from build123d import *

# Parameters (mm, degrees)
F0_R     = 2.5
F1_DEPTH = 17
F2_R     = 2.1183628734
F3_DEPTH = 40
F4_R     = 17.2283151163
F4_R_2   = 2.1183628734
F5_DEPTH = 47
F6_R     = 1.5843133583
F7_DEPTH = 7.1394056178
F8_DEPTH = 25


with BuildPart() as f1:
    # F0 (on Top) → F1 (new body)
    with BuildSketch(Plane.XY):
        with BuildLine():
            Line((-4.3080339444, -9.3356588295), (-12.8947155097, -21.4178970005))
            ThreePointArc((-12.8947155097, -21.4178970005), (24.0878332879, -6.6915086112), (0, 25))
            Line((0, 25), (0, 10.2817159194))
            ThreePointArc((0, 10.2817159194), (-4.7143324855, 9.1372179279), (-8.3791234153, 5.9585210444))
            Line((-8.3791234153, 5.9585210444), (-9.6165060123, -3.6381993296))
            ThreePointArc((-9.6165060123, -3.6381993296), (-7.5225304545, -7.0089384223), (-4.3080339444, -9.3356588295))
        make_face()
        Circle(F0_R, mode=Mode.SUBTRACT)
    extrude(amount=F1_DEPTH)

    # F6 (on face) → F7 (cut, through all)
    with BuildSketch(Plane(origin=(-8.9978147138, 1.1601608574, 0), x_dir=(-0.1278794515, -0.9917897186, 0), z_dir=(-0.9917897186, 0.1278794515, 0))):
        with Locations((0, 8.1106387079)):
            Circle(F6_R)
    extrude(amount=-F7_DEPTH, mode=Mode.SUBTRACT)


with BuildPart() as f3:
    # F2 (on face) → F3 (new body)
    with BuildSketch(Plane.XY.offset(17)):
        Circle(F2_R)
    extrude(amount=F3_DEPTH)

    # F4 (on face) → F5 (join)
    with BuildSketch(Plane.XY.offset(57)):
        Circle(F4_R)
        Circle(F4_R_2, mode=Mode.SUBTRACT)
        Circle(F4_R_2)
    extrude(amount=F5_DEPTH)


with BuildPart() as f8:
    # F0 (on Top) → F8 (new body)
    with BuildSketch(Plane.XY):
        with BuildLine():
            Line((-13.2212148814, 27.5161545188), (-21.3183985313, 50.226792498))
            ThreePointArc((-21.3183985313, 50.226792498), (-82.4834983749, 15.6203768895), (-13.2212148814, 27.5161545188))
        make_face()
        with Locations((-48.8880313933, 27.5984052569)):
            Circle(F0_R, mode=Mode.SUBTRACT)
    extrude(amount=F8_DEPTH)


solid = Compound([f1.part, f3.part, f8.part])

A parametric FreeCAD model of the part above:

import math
import FreeCAD as App
import Part
import Sketcher
from FreeCAD import Vector

doc = App.newDocument("Part")
body = doc.addObject("PartDesign::Body", "Body")

sketch1 = doc.addObject("Sketcher::SketchObject", "Sketch")
body.addObject(sketch1)
sketch1.AttachmentSupport = (doc.XY_Plane, [""])
sketch1.MapMode = "FlatFace"
sketch1.addGeometry(Part.LineSegment(Vector(-4.3, -9.3, 0), Vector(-12.9, -21.4, 0)), False)
sketch1.addGeometry(Part.ArcOfCircle(Part.Circle(Vector(0, 0, 0), Vector(0, 0, 1), 25), math.radians(-121), math.radians(90)), False)
sketch1.addGeometry(Part.LineSegment(Vector(0, 25, 0), Vector(0, 10.3, 0)), False)
sketch1.addGeometry(Part.ArcOfCircle(Part.Circle(Vector(0, 0, 0), Vector(0, 0, 1), 10.3), math.radians(90), math.radians(145)), False)
sketch1.addGeometry(Part.LineSegment(Vector(-8.4, 6, 0), Vector(-9.6, -3.6, 0)), False)
sketch1.addGeometry(Part.ArcOfCircle(Part.Circle(Vector(0, 0, 0), Vector(0, 0, 1), 10.3), math.radians(-159), math.radians(-115)), False)
sketch1.addGeometry(Part.Circle(Vector(0, 0, 0), Vector(0, 0, 1), 2.5), False)
sketch1.addConstraint(Sketcher.Constraint("Coincident", 0, 2, 1, 1))
sketch1.addConstraint(Sketcher.Constraint("Coincident", 1, 2, 2, 1))
sketch1.addConstraint(Sketcher.Constraint("Coincident", 2, 2, 3, 1))
sketch1.addConstraint(Sketcher.Constraint("Coincident", 3, 2, 4, 1))
sketch1.addConstraint(Sketcher.Constraint("Coincident", 4, 2, 5, 1))
sketch1.addConstraint(Sketcher.Constraint("Coincident", 5, 2, 0, 1))
sketch1.addConstraint(Sketcher.Constraint("Vertical", 2))
sketch1.addConstraint(Sketcher.Constraint("Coincident", 1, 3, -1, 1))
sketch1.addConstraint(Sketcher.Constraint("Coincident", 3, 3, -1, 1))
sketch1.addConstraint(Sketcher.Constraint("Coincident", 5, 3, -1, 1))
sketch1.addConstraint(Sketcher.Constraint("Coincident", 6, 3, -1, 1))
sketch1.addConstraint(Sketcher.Constraint("Equal", 3, 5))
sketch1.addConstraint(Sketcher.Constraint("PointOnObject", 1, 2, -2))
sketch1.addConstraint(Sketcher.Constraint("Diameter", 6, 5.0))
sketch1.addConstraint(Sketcher.Constraint("Radius", 1, 25.0))
sketch1.addConstraint(Sketcher.Constraint("Radius", 3, 10.281716))
sketch1.addConstraint(Sketcher.Constraint("DistanceY", 4, 2, -1, 1, 3.638199))
sketch1.addConstraint(Sketcher.Constraint("Distance", 0, 14.822671))
sketch1.addConstraint(Sketcher.Constraint("DistanceY", -1, 1, 3, 2, 5.958521))
sketch1.addConstraint(Sketcher.Constraint("DistanceY", 5, 2, -1, 1, 9.335659))
pad1 = doc.addObject("PartDesign::Pad", "Pad")
body.addObject(pad1)
pad1.Profile = sketch1
pad1.Length = 17

sketch2 = doc.addObject("Sketcher::SketchObject", "Sketch001")
body.addObject(sketch2)
sketch2.Placement = App.Placement(Vector(-8.997815, 1.160161, 0), App.Rotation(Vector(-0.127879451, -0.991789719, 0), Vector(0, 0, 1.000000001), Vector(-0.991789719, 0.127879451, 0), "ZXY"))
sketch2.addGeometry(Part.Circle(Vector(0, 8.1, 0), Vector(0, 0, 1), 1.6), False)
sketch2.addConstraint(Sketcher.Constraint("PointOnObject", 0, 3, -2))
sketch2.addConstraint(Sketcher.Constraint("Diameter", 0, 3.168627))
sketch2.addConstraint(Sketcher.Constraint("DistanceY", -1, 1, 0, 3, 8.110639))
pocket1 = doc.addObject("PartDesign::Pocket", "Pocket")
body.addObject(pocket1)
pocket1.Profile = sketch2
pocket1.Length = 7.139406
body2 = doc.addObject("PartDesign::Body", "Body001")

sketch3 = doc.addObject("Sketcher::SketchObject", "Sketch002")
body2.addObject(sketch3)
sketch3.AttachmentSupport = (doc.getObject("XY_Plane001"), [""])
sketch3.MapMode = "FlatFace"
sketch3.AttachmentOffset = App.Placement(Vector(0, 0, 17), App.Rotation())
sketch3.addGeometry(Part.Circle(Vector(0, 0, 0), Vector(0, 0, 1), 2.1), False)
sketch3.addConstraint(Sketcher.Constraint("Coincident", 0, 3, -1, 1))
sketch3.addConstraint(Sketcher.Constraint("Diameter", 0, 4.236726))
pad2 = doc.addObject("PartDesign::Pad", "Pad001")
body2.addObject(pad2)
pad2.Profile = sketch3
pad2.Length = 40

sketch4 = doc.addObject("Sketcher::SketchObject", "Sketch003")
body2.addObject(sketch4)
sketch4.AttachmentSupport = (doc.getObject("XY_Plane001"), [""])
sketch4.MapMode = "FlatFace"
sketch4.AttachmentOffset = App.Placement(Vector(0, 0, 57), App.Rotation())
sketch4.addGeometry(Part.Circle(Vector(0, 0, 0), Vector(0, 0, 1), 17), False)
sketch4.addConstraint(Sketcher.Constraint("Coincident", 0, 3, -1, 1))
sketch4.addConstraint(Sketcher.Constraint("Diameter", 0, 34.45663))
pad3 = doc.addObject("PartDesign::Pad", "Pad002")
body2.addObject(pad3)
pad3.Profile = sketch4
pad3.Length = 47
body3 = doc.addObject("PartDesign::Body", "Body002")

sketch5 = doc.addObject("Sketcher::SketchObject", "Sketch004")
body3.addObject(sketch5)
sketch5.AttachmentSupport = (doc.getObject("XY_Plane002"), [""])
sketch5.MapMode = "FlatFace"
sketch5.addGeometry(Part.LineSegment(Vector(-13.2, 27.5, 0), Vector(-21.3, 50.2, 0)), False)
sketch5.addGeometry(Part.ArcOfCircle(Part.Circle(Vector(-48.9, 27.6, 0), Vector(0, 0, 1), 35.7), math.radians(39), math.radians(360)), False)
sketch5.addGeometry(Part.Circle(Vector(-48.9, 27.6, 0), Vector(0, 0, 1), 2.5), False)
sketch5.addConstraint(Sketcher.Constraint("Coincident", 0, 1, 1, 2))
sketch5.addConstraint(Sketcher.Constraint("Coincident", 1, 1, 0, 2))
sketch5.addConstraint(Sketcher.Constraint("Coincident", 2, 3, 1, 3))
sketch5.addConstraint(Sketcher.Constraint("Diameter", 2, 5.0))
sketch5.addConstraint(Sketcher.Constraint("Radius", 1, 35.666911))
sketch5.addConstraint(Sketcher.Constraint("DistanceX", 1, 1, -1, 1, 21.318399))
sketch5.addConstraint(Sketcher.Constraint("Distance", 0, 24.110941))
sketch5.addConstraint(Sketcher.Constraint("DistanceX", 1, 3, -1, 1, 48.888031))
sketch5.addConstraint(Sketcher.Constraint("DistanceY", -1, 1, 1, 3, 27.598405))
pad4 = doc.addObject("PartDesign::Pad", "Pad003")
body3.addObject(pad4)
pad4.Profile = sketch5
pad4.Length = 25

doc.recompute()
